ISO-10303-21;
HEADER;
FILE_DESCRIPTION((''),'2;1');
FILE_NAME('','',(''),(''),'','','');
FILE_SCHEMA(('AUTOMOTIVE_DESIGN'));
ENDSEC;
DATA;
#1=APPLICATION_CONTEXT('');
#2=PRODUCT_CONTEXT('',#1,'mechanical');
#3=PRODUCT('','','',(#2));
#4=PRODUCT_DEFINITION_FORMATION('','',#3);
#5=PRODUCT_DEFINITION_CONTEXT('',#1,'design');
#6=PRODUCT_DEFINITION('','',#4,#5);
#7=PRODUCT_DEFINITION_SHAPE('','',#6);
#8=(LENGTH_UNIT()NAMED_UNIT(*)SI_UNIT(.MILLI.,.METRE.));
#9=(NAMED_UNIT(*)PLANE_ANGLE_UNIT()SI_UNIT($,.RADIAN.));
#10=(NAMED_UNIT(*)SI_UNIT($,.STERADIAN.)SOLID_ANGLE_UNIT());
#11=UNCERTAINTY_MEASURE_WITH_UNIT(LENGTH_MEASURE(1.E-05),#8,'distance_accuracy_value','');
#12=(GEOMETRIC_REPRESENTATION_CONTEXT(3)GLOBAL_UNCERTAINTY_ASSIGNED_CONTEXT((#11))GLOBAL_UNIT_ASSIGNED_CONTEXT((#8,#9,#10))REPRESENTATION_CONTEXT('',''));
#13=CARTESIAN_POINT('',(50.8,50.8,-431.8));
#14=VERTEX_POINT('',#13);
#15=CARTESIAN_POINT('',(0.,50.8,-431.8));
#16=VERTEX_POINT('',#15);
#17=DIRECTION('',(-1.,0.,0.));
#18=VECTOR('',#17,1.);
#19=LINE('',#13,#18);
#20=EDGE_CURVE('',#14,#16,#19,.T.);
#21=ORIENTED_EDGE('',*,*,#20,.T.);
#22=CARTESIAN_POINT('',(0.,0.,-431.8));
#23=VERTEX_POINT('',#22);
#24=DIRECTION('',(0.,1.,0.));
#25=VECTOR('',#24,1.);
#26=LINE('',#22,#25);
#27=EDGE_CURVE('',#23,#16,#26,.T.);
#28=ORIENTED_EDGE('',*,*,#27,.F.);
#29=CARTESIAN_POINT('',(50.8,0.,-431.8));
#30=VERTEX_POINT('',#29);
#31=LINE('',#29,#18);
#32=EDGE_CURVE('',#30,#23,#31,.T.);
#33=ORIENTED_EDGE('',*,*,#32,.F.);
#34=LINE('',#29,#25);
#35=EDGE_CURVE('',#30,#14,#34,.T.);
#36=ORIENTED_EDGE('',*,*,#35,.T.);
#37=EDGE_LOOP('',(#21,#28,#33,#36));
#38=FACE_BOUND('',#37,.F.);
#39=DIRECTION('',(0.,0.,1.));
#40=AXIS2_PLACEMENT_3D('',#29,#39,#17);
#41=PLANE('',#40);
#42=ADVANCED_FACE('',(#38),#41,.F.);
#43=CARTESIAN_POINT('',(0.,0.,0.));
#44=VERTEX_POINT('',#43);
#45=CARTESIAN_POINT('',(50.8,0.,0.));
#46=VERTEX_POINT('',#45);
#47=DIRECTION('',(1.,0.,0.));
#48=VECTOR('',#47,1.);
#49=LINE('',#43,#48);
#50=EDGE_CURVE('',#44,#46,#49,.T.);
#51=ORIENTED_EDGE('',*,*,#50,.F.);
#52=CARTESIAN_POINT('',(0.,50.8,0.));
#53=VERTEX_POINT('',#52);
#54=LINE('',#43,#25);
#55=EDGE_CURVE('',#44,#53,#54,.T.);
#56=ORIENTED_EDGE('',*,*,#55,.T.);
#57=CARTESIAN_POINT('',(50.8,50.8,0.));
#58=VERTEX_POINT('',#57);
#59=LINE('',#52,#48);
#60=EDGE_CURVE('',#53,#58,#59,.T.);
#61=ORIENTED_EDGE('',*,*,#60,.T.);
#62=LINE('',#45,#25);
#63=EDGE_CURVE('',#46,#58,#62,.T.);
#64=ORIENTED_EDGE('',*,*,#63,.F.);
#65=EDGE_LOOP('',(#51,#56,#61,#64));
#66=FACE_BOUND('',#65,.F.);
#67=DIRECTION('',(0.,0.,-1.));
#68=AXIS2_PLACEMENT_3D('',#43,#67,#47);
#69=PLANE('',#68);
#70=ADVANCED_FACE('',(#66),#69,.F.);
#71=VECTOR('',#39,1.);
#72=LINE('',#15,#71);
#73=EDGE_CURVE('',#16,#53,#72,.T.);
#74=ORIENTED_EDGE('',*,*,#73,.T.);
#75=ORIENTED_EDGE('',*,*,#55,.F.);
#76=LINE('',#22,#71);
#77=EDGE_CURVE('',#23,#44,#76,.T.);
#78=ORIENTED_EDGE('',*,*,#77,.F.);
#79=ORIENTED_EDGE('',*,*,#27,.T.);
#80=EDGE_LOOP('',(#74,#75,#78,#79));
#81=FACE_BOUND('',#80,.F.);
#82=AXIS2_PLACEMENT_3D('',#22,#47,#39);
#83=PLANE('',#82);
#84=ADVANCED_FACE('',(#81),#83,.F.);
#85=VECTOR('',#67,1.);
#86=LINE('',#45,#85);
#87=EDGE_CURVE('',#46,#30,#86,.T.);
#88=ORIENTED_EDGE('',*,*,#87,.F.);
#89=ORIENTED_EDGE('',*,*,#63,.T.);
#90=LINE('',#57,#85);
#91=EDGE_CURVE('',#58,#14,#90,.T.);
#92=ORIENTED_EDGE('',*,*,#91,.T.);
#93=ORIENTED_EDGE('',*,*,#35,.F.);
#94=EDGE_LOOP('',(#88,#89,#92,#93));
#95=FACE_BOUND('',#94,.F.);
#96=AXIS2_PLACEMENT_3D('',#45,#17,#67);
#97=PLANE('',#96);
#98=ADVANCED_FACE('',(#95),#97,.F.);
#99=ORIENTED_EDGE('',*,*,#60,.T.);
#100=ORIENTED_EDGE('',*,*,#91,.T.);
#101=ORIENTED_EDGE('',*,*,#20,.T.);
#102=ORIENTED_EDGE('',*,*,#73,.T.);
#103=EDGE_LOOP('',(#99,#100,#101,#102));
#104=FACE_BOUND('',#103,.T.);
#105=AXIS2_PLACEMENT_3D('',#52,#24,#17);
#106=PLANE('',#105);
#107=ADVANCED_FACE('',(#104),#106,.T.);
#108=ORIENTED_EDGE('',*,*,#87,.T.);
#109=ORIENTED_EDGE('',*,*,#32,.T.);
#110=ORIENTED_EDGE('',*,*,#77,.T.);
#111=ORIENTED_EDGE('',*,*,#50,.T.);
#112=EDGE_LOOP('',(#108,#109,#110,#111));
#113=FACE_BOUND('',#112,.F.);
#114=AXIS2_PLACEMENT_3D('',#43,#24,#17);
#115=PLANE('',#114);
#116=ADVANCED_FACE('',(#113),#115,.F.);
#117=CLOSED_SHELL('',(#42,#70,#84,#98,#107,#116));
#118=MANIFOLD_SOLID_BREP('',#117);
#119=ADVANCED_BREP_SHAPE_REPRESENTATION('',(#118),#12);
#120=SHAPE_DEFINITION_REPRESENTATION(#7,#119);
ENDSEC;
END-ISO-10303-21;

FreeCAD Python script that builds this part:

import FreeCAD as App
import Part
import Sketcher

V = App.Vector
Q = App.Units.Quantity

doc = App.newDocument("Part")
body = doc.addObject("PartDesign::Body", "Body")

sketch1 = doc.addObject("Sketcher::SketchObject", "Sketch")
body.addObject(sketch1)
sketch1.AttachmentSupport = (doc.XZ_Plane, [""])
sketch1.MapMode = "FlatFace"
sketch1.addGeometry([
    Part.LineSegment(V(0, -432, 0), V(0, 0, 0)),
    Part.LineSegment(V(0, 0, 0), V(51, 0, 0)),
    Part.LineSegment(V(51, 0, 0), V(51, -432, 0)),
    Part.LineSegment(V(51, -432, 0), V(0, -432, 0)),
], False)
sketch1.addConstraint([
    Sketcher.Constraint("Coincident", 0, 2, 1, 1),
    Sketcher.Constraint("Coincident", 1, 2, 2, 1),
    Sketcher.Constraint("Coincident", 2, 2, 3, 1),
    Sketcher.Constraint("Coincident", 3, 2, 0, 1),
    Sketcher.Constraint("Vertical", 0),
    Sketcher.Constraint("Horizontal", 1),
    Sketcher.Constraint("Vertical", 2),
    Sketcher.Constraint("Horizontal", 3),
    Sketcher.Constraint("Coincident", 0, 2, -1, 1),
    Sketcher.Constraint("DistanceX", 1, 1, 1, 2, Q("2 in")),
    Sketcher.Constraint("DistanceY", 0, 1, 0, 2, Q("17 in")),
])
pad1 = doc.addObject("PartDesign::Pad", "Pad")
body.addObject(pad1)
pad1.Profile = sketch1
pad1.Length = Q("2 in")
pad1.Reversed = True

doc.recompute()
